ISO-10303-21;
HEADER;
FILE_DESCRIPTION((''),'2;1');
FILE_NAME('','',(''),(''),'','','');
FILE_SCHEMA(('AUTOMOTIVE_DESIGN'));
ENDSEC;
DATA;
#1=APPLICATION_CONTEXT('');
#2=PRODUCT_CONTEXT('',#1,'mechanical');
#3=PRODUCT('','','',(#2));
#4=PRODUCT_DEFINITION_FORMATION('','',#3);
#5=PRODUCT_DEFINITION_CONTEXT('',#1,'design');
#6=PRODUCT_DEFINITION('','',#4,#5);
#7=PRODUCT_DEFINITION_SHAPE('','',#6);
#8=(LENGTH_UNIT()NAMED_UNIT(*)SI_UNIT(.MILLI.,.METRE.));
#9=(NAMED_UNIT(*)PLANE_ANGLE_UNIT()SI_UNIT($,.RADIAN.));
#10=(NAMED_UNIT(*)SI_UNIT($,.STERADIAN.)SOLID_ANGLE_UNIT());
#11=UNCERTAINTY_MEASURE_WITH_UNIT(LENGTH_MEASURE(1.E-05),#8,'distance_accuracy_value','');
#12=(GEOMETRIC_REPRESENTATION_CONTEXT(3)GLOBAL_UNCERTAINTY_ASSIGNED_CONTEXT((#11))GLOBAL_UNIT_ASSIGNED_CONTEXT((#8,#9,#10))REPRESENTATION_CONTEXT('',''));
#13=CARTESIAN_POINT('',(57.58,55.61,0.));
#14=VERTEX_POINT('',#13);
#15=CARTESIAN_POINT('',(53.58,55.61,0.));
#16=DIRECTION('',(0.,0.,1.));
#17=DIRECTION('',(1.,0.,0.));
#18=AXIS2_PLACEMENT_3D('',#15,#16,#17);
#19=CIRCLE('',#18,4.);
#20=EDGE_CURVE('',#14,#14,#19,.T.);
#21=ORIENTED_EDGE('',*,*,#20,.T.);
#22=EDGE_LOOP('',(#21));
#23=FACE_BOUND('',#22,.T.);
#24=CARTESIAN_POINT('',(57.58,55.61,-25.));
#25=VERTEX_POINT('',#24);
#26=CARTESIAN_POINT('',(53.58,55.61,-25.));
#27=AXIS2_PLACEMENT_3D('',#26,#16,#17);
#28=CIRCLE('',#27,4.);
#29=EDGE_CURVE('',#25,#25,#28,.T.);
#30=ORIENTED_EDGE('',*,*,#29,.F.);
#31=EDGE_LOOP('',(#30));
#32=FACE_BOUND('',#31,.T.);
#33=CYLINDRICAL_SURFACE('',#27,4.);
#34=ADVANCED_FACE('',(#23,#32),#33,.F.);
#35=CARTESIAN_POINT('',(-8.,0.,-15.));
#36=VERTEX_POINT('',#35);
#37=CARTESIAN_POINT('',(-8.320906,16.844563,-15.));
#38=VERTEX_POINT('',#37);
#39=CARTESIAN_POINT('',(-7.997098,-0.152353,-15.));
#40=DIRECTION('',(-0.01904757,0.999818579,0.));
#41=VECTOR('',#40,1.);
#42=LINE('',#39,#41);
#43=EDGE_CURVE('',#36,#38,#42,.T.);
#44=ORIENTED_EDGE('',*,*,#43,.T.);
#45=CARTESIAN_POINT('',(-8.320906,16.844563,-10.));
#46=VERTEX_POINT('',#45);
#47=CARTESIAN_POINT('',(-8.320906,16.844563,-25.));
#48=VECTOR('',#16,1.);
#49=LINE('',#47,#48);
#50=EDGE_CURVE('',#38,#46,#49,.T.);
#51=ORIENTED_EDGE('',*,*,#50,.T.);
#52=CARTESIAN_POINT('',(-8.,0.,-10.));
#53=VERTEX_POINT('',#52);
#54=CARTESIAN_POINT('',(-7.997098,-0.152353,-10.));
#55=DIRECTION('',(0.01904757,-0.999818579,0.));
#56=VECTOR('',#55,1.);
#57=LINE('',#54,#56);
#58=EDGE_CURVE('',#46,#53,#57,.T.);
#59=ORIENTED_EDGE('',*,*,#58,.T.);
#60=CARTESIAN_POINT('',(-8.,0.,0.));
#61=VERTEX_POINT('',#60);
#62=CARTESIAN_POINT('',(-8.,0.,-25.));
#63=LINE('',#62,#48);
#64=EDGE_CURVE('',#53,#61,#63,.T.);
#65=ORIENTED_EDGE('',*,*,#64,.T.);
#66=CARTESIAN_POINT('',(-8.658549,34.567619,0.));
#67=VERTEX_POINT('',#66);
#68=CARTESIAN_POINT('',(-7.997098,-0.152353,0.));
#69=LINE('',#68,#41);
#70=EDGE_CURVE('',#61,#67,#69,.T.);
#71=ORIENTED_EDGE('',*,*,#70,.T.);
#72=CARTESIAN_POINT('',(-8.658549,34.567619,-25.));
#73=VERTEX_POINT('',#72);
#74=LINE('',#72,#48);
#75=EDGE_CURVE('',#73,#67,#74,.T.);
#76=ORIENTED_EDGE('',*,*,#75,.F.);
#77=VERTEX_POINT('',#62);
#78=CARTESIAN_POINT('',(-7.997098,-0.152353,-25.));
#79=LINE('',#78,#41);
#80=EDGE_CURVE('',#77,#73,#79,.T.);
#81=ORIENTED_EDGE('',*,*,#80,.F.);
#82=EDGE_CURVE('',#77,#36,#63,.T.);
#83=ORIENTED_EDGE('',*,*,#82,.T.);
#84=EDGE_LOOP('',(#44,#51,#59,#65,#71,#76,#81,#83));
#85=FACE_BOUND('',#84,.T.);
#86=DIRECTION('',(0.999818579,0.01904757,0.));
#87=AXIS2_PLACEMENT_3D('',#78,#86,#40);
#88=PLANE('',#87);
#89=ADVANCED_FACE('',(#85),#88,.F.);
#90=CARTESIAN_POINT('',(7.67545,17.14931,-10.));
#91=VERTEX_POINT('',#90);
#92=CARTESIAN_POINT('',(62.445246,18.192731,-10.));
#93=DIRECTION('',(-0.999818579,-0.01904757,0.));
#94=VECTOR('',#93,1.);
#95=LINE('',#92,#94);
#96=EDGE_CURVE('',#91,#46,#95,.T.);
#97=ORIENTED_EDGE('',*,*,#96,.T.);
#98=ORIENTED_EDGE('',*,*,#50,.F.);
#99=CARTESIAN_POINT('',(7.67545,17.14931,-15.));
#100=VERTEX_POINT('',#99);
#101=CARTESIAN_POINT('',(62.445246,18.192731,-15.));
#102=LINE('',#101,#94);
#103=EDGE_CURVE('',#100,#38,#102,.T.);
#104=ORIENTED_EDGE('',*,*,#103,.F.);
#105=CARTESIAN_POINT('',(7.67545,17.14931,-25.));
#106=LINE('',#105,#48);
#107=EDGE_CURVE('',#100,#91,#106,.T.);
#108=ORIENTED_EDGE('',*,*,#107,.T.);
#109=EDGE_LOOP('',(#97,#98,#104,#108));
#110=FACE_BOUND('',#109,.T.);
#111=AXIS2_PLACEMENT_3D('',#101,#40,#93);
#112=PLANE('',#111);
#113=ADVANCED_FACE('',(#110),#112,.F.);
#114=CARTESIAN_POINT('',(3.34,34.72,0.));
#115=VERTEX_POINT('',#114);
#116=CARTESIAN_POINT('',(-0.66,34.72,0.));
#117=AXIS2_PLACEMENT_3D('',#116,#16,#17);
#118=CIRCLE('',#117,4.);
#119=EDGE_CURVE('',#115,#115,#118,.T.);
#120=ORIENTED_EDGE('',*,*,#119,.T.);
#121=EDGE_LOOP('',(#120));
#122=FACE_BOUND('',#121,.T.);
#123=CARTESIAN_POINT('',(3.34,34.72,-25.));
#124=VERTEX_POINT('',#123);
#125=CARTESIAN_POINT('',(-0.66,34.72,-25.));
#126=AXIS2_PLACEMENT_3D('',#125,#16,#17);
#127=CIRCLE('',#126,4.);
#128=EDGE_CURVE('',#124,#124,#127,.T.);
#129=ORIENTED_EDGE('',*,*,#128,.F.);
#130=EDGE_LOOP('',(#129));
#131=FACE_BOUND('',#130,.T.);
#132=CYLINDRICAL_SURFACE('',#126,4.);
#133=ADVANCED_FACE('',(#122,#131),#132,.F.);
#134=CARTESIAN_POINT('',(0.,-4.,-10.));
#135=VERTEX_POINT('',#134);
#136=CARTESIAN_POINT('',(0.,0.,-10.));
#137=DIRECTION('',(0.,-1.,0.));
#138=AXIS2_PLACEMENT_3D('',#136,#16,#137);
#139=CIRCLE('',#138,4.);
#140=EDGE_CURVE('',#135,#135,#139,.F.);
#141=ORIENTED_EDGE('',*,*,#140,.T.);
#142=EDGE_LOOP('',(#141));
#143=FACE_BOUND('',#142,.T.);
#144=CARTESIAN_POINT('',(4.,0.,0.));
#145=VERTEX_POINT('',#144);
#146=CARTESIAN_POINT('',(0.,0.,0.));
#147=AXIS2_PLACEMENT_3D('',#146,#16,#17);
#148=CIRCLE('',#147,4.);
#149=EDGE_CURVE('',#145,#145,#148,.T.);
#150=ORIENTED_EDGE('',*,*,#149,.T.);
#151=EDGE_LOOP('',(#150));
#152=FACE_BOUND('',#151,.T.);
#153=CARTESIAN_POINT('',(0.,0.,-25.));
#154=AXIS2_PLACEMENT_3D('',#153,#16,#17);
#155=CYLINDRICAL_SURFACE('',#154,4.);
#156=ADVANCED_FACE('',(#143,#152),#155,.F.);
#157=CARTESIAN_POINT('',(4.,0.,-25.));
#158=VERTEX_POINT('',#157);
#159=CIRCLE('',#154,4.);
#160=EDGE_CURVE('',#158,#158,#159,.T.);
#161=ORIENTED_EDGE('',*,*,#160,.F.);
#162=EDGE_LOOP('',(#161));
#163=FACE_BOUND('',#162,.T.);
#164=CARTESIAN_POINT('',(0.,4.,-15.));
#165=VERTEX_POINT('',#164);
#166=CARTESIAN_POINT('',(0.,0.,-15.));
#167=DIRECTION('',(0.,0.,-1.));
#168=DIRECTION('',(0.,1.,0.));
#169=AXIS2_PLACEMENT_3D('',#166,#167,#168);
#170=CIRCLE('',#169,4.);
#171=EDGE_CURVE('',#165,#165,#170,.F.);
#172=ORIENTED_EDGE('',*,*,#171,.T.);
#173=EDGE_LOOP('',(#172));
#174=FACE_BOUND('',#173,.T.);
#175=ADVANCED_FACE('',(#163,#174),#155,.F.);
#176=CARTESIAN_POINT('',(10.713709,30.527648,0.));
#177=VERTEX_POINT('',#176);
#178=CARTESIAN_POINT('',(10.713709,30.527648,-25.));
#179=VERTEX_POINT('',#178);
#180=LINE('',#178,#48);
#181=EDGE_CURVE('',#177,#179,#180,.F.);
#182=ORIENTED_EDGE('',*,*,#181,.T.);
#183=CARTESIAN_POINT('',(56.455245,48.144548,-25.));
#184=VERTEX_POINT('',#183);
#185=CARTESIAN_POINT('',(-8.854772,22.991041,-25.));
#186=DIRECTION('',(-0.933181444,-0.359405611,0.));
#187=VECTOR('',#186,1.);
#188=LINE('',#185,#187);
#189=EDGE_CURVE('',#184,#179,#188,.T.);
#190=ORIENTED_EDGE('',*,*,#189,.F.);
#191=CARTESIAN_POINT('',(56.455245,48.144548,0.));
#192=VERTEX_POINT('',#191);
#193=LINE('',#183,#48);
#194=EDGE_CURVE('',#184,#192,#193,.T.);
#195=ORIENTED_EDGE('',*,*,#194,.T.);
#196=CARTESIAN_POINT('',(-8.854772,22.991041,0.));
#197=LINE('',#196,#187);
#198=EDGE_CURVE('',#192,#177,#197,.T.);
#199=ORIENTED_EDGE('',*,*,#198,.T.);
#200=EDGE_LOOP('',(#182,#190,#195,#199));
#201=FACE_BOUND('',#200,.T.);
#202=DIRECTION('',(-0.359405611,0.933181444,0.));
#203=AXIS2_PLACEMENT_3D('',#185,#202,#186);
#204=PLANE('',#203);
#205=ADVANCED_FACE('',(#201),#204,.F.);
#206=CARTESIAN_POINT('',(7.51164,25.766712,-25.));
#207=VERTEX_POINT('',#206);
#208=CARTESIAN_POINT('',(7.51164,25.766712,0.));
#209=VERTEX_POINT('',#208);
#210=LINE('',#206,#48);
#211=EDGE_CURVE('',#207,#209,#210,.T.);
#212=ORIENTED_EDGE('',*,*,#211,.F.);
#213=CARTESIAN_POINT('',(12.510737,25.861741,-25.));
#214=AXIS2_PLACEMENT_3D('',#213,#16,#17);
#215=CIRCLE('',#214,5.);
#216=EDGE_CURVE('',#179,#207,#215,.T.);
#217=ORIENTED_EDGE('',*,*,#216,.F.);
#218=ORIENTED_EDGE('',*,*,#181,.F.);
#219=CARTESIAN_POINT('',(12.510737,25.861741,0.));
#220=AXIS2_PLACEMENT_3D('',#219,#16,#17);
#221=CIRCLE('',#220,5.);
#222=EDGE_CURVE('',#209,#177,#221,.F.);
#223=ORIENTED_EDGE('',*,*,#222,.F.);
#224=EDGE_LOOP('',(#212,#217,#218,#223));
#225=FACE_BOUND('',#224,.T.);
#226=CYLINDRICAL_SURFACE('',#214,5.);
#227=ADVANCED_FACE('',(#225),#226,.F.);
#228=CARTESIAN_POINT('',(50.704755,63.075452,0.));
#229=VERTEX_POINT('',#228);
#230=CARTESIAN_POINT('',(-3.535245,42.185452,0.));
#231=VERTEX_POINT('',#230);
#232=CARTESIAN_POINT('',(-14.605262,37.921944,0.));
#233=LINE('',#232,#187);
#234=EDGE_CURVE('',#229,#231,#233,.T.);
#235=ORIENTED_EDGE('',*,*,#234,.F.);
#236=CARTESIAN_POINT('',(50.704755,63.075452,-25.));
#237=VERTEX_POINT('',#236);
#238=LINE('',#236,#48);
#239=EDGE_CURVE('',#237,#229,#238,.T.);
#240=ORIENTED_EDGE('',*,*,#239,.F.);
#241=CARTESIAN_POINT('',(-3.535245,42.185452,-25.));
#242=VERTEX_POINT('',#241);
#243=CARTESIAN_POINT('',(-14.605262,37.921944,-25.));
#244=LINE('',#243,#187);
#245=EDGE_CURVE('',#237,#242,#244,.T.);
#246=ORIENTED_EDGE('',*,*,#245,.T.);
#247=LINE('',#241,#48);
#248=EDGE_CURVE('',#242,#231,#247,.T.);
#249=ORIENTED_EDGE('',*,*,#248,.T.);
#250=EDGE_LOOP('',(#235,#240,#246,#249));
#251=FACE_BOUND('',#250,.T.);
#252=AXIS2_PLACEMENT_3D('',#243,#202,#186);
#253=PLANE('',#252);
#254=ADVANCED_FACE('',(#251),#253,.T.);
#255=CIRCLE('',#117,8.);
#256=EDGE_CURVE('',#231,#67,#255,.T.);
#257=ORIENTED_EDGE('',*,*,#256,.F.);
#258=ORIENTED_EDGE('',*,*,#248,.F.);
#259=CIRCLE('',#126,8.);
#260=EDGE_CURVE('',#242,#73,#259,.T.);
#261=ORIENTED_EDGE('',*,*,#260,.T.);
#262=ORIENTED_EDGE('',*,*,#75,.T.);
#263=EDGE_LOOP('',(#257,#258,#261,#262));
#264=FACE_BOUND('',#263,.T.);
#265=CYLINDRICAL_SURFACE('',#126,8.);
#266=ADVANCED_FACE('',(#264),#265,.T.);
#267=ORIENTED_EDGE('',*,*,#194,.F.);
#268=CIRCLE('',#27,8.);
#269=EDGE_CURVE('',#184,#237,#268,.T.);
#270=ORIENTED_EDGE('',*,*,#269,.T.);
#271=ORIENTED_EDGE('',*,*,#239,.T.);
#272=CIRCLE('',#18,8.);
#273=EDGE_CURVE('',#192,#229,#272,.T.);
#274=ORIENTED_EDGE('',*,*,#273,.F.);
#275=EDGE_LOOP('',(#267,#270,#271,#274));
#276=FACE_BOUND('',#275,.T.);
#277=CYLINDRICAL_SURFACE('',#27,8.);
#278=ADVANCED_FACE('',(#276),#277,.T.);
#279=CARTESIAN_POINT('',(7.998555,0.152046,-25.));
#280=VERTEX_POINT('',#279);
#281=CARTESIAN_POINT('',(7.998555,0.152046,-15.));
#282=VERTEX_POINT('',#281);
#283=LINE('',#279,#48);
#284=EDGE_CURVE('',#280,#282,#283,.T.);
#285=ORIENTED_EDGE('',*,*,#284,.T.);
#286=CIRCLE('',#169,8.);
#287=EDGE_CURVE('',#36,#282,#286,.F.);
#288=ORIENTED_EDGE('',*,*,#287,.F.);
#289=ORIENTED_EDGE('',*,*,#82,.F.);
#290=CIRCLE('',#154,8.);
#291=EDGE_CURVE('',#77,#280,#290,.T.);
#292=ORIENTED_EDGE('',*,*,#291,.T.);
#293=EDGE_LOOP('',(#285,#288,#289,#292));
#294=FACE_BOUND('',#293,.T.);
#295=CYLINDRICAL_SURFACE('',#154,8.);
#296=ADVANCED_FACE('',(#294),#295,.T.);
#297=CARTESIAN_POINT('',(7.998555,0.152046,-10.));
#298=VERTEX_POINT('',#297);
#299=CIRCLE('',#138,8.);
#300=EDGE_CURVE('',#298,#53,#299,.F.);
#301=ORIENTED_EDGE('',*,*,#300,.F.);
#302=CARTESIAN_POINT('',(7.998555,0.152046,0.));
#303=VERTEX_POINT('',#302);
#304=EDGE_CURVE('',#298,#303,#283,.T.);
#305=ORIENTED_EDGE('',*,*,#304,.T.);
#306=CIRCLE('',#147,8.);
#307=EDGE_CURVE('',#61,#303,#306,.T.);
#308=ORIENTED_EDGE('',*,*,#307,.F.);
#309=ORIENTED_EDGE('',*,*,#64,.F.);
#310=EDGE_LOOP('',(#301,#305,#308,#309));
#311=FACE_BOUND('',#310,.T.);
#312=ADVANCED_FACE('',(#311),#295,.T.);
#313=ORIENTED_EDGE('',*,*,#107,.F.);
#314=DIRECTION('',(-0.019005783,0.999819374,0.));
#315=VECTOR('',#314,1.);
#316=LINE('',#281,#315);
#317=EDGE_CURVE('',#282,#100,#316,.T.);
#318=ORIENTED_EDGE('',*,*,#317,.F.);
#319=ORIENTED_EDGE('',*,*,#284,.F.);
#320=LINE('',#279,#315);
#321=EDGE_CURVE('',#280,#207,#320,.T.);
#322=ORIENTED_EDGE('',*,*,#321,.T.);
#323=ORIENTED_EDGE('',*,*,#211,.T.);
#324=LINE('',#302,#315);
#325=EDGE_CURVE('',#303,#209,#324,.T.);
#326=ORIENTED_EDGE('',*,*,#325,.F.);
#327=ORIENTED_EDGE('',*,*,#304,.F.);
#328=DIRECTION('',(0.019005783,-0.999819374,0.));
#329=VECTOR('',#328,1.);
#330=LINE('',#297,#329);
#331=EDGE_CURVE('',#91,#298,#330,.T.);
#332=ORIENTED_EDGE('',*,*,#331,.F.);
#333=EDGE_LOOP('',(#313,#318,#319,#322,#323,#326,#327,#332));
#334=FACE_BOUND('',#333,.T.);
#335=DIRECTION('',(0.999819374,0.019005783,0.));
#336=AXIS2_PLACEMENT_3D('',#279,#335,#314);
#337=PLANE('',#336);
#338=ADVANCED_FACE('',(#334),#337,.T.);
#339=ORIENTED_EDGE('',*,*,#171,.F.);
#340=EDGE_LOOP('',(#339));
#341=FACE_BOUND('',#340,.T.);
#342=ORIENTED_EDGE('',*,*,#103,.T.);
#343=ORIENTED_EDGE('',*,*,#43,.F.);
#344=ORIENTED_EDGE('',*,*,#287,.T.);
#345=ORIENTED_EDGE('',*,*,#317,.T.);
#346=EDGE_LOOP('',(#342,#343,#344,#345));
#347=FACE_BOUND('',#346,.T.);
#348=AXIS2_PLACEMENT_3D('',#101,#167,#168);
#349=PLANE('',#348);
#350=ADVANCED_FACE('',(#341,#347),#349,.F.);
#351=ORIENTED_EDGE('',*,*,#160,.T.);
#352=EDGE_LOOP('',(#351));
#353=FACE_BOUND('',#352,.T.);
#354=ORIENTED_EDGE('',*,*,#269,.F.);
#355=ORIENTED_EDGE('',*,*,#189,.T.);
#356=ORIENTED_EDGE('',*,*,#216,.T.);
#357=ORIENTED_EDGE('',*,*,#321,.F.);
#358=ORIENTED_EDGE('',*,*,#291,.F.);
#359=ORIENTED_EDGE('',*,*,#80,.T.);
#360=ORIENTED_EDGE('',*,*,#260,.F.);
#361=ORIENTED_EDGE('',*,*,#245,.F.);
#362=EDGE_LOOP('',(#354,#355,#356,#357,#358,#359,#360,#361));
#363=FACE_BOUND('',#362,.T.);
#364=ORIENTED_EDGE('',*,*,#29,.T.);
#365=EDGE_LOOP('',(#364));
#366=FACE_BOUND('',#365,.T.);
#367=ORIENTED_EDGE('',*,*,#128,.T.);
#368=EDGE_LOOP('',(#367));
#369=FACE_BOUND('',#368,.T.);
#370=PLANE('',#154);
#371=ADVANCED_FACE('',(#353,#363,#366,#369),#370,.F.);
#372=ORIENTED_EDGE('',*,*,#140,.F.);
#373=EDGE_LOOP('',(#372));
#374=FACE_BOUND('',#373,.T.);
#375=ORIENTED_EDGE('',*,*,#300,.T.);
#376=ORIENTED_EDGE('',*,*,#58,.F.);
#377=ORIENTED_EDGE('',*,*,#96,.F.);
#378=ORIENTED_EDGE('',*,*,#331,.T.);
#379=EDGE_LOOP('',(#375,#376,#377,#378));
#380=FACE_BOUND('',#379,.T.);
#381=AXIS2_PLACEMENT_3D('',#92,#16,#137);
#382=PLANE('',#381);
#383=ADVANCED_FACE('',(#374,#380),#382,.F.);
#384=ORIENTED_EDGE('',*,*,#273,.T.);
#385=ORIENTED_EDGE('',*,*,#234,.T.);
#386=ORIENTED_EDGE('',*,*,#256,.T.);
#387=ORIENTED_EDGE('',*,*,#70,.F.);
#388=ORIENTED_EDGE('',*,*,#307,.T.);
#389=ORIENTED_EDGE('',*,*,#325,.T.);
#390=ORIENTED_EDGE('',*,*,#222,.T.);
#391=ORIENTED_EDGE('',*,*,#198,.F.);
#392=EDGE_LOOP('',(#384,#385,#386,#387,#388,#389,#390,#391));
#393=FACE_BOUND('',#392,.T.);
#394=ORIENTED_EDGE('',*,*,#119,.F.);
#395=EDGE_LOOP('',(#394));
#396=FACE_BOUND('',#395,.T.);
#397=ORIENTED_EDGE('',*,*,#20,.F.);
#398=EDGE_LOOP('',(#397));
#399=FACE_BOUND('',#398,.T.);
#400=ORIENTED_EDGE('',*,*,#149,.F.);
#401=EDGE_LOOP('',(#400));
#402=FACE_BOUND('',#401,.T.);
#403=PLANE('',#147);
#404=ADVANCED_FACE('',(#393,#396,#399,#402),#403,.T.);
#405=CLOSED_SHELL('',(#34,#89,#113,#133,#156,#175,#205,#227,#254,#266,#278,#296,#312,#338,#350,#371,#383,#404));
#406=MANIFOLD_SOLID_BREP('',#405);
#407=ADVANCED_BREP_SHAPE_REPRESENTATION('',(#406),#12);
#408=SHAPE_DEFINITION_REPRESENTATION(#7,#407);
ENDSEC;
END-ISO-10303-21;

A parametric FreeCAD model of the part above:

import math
import FreeCAD as App
import Part
import Sketcher


def edges_at(feature, points):
    """Names of the edges that pass closest to the given points."""
    edges = feature.Shape.Edges
    near = lambda p: min(range(len(edges)), key=lambda i: edges[i].distToShape(Part.Vertex(*p))[0])
    return sorted({f"Edge{near(p) + 1}" for p in points})

doc = App.newDocument("Part")
body = doc.addObject("PartDesign::Body", "Body")

# Sketch on XY plane
sketch1 = body.newObject("Sketcher::SketchObject", "Sketch")
sketch1.AttachmentSupport = (doc.getObject("XY_Plane"), [""])
sketch1.MapMode = "FlatFace"
sketch1.addGeometry([
    Part.ArcOfCircle(Part.Circle(App.Vector(53.6, 55.6, 0), App.Vector(0, 0, 1), 8), math.radians(-69), math.radians(111)),  # 0
    Part.LineSegment(App.Vector(50.7, 63.1, 0), App.Vector(-3.5, 42.2, 0)),  # 1
    Part.ArcOfCircle(Part.Circle(App.Vector(-0.7, 34.7, 0), App.Vector(0, 0, 1), 8), math.radians(111), math.radians(181)),  # 2
    Part.LineSegment(App.Vector(-8.7, 34.6, 0), App.Vector(-8, 0, 0)),  # 3
    Part.ArcOfCircle(Part.Circle(App.Vector(0, 0, 0), App.Vector(0, 0, 1), 8), math.radians(180), math.radians(361)),  # 4
    Part.LineSegment(App.Vector(8, 0.2, 0), App.Vector(7.4, 29.3, 0)),  # 5
    Part.LineSegment(App.Vector(7.4, 29.3, 0), App.Vector(56.5, 48.1, 0)),  # 6
    Part.Circle(App.Vector(0, 0, 0), App.Vector(0, 0, 1), 4),  # 7
    Part.Circle(App.Vector(-0.7, 34.7, 0), App.Vector(0, 0, 1), 4),  # 8
    Part.Circle(App.Vector(53.6, 55.6, 0), App.Vector(0, 0, 1), 4),  # 9
], False)
sketch1.addConstraint([
    Sketcher.Constraint("Tangent", 0, 2, 1, 1),
    Sketcher.Constraint("Tangent", 1, 2, 2, 1),
    Sketcher.Constraint("Tangent", 2, 2, 3, 1),
    Sketcher.Constraint("Coincident", 3, 2, 4, 1),
    Sketcher.Constraint("Tangent", 4, 2, 5, 1),
    Sketcher.Constraint("Coincident", 5, 2, 6, 1),
    Sketcher.Constraint("Tangent", 6, 2, 0, 1),
    Sketcher.Constraint("Coincident", 4, 3, -1, 1),
    Sketcher.Constraint("Coincident", 7, 3, -1, 1),
    Sketcher.Constraint("Coincident", 8, 3, 2, 3),
    Sketcher.Constraint("Coincident", 9, 3, 0, 3),
    Sketcher.Constraint("Equal", 0, 2),
    Sketcher.Constraint("Equal", 2, 4),
    Sketcher.Constraint("Equal", 7, 8),
    Sketcher.Constraint("Equal", 8, 9),
    Sketcher.Constraint("PointOnObject", 3, 2, -1),
    Sketcher.Constraint("Parallel", 1, 6),
    Sketcher.Constraint("Diameter", 7, 8.0),
    Sketcher.Constraint("Radius", 0, 8.0),
    Sketcher.Constraint("DistanceX", -1, 1, 0, 3, 53.58),
    Sketcher.Constraint("DistanceY", -1, 1, 0, 3, 55.61),
    Sketcher.Constraint("DistanceX", 2, 3, -1, 1, 0.66),
    Sketcher.Constraint("DistanceY", -1, 1, 2, 3, 34.72),
    Sketcher.Constraint("Distance", 6, 52.51945),
])
pad1 = body.newObject("PartDesign::Pad", "Pad")
pad1.Profile = sketch1
pad1.Length = 25
pad1.Reversed = True
doc.recompute()

fillet = body.newObject("PartDesign::Fillet", "Fillet")
fillet.Base = (pad1, edges_at(pad1, [(7.445, 29.269, -12.5)]))
fillet.Radius = 5

# Sketch on an angled plane
sketch2 = body.newObject("Sketcher::SketchObject", "Sketch001")
sketch2.Placement = App.Placement(App.Vector(-7.997098, -0.152353, 0), App.Rotation(App.Vector(0, 0, 1), App.Vector(-0.01904757, 0.999818579, 0), App.Vector(-0.999818579, -0.01904757, 0), "ZXY"))
sketch2.addGeometry([
    Part.LineSegment(App.Vector(-15, 17, 0), App.Vector(-15, -13, 0)),
    Part.LineSegment(App.Vector(-15, -13, 0), App.Vector(-10, -13, 0)),
    Part.LineSegment(App.Vector(-10, -13, 0), App.Vector(-10, 17, 0)),
    Part.LineSegment(App.Vector(-10, 17, 0), App.Vector(-15, 17, 0)),
], False)
sketch2.addConstraint([
    Sketcher.Constraint("Coincident", 0, 2, 1, 1),
    Sketcher.Constraint("Coincident", 1, 2, 2, 1),
    Sketcher.Constraint("Coincident", 2, 2, 3, 1),
    Sketcher.Constraint("Coincident", 3, 2, 0, 1),
    Sketcher.Constraint("Vertical", 0),
    Sketcher.Constraint("Horizontal", 1),
    Sketcher.Constraint("Vertical", 2),
    Sketcher.Constraint("Horizontal", 3),
    Sketcher.Constraint("DistanceX", 1, 1, 1, 2, 5.0),
    Sketcher.Constraint("DistanceY", 0, 2, 0, 1, 30.0),
    Sketcher.Constraint("DistanceX", 0, 2, -1, 1, 15.0),
    Sketcher.Constraint("DistanceY", 0, 2, -1, 1, 13.0),
])
pocket1 = body.newObject("PartDesign::Pocket", "Pocket")
pocket1.Profile = sketch2
pocket1.Type = "ThroughAll"
pocket1.Midplane = True

doc.recompute()
